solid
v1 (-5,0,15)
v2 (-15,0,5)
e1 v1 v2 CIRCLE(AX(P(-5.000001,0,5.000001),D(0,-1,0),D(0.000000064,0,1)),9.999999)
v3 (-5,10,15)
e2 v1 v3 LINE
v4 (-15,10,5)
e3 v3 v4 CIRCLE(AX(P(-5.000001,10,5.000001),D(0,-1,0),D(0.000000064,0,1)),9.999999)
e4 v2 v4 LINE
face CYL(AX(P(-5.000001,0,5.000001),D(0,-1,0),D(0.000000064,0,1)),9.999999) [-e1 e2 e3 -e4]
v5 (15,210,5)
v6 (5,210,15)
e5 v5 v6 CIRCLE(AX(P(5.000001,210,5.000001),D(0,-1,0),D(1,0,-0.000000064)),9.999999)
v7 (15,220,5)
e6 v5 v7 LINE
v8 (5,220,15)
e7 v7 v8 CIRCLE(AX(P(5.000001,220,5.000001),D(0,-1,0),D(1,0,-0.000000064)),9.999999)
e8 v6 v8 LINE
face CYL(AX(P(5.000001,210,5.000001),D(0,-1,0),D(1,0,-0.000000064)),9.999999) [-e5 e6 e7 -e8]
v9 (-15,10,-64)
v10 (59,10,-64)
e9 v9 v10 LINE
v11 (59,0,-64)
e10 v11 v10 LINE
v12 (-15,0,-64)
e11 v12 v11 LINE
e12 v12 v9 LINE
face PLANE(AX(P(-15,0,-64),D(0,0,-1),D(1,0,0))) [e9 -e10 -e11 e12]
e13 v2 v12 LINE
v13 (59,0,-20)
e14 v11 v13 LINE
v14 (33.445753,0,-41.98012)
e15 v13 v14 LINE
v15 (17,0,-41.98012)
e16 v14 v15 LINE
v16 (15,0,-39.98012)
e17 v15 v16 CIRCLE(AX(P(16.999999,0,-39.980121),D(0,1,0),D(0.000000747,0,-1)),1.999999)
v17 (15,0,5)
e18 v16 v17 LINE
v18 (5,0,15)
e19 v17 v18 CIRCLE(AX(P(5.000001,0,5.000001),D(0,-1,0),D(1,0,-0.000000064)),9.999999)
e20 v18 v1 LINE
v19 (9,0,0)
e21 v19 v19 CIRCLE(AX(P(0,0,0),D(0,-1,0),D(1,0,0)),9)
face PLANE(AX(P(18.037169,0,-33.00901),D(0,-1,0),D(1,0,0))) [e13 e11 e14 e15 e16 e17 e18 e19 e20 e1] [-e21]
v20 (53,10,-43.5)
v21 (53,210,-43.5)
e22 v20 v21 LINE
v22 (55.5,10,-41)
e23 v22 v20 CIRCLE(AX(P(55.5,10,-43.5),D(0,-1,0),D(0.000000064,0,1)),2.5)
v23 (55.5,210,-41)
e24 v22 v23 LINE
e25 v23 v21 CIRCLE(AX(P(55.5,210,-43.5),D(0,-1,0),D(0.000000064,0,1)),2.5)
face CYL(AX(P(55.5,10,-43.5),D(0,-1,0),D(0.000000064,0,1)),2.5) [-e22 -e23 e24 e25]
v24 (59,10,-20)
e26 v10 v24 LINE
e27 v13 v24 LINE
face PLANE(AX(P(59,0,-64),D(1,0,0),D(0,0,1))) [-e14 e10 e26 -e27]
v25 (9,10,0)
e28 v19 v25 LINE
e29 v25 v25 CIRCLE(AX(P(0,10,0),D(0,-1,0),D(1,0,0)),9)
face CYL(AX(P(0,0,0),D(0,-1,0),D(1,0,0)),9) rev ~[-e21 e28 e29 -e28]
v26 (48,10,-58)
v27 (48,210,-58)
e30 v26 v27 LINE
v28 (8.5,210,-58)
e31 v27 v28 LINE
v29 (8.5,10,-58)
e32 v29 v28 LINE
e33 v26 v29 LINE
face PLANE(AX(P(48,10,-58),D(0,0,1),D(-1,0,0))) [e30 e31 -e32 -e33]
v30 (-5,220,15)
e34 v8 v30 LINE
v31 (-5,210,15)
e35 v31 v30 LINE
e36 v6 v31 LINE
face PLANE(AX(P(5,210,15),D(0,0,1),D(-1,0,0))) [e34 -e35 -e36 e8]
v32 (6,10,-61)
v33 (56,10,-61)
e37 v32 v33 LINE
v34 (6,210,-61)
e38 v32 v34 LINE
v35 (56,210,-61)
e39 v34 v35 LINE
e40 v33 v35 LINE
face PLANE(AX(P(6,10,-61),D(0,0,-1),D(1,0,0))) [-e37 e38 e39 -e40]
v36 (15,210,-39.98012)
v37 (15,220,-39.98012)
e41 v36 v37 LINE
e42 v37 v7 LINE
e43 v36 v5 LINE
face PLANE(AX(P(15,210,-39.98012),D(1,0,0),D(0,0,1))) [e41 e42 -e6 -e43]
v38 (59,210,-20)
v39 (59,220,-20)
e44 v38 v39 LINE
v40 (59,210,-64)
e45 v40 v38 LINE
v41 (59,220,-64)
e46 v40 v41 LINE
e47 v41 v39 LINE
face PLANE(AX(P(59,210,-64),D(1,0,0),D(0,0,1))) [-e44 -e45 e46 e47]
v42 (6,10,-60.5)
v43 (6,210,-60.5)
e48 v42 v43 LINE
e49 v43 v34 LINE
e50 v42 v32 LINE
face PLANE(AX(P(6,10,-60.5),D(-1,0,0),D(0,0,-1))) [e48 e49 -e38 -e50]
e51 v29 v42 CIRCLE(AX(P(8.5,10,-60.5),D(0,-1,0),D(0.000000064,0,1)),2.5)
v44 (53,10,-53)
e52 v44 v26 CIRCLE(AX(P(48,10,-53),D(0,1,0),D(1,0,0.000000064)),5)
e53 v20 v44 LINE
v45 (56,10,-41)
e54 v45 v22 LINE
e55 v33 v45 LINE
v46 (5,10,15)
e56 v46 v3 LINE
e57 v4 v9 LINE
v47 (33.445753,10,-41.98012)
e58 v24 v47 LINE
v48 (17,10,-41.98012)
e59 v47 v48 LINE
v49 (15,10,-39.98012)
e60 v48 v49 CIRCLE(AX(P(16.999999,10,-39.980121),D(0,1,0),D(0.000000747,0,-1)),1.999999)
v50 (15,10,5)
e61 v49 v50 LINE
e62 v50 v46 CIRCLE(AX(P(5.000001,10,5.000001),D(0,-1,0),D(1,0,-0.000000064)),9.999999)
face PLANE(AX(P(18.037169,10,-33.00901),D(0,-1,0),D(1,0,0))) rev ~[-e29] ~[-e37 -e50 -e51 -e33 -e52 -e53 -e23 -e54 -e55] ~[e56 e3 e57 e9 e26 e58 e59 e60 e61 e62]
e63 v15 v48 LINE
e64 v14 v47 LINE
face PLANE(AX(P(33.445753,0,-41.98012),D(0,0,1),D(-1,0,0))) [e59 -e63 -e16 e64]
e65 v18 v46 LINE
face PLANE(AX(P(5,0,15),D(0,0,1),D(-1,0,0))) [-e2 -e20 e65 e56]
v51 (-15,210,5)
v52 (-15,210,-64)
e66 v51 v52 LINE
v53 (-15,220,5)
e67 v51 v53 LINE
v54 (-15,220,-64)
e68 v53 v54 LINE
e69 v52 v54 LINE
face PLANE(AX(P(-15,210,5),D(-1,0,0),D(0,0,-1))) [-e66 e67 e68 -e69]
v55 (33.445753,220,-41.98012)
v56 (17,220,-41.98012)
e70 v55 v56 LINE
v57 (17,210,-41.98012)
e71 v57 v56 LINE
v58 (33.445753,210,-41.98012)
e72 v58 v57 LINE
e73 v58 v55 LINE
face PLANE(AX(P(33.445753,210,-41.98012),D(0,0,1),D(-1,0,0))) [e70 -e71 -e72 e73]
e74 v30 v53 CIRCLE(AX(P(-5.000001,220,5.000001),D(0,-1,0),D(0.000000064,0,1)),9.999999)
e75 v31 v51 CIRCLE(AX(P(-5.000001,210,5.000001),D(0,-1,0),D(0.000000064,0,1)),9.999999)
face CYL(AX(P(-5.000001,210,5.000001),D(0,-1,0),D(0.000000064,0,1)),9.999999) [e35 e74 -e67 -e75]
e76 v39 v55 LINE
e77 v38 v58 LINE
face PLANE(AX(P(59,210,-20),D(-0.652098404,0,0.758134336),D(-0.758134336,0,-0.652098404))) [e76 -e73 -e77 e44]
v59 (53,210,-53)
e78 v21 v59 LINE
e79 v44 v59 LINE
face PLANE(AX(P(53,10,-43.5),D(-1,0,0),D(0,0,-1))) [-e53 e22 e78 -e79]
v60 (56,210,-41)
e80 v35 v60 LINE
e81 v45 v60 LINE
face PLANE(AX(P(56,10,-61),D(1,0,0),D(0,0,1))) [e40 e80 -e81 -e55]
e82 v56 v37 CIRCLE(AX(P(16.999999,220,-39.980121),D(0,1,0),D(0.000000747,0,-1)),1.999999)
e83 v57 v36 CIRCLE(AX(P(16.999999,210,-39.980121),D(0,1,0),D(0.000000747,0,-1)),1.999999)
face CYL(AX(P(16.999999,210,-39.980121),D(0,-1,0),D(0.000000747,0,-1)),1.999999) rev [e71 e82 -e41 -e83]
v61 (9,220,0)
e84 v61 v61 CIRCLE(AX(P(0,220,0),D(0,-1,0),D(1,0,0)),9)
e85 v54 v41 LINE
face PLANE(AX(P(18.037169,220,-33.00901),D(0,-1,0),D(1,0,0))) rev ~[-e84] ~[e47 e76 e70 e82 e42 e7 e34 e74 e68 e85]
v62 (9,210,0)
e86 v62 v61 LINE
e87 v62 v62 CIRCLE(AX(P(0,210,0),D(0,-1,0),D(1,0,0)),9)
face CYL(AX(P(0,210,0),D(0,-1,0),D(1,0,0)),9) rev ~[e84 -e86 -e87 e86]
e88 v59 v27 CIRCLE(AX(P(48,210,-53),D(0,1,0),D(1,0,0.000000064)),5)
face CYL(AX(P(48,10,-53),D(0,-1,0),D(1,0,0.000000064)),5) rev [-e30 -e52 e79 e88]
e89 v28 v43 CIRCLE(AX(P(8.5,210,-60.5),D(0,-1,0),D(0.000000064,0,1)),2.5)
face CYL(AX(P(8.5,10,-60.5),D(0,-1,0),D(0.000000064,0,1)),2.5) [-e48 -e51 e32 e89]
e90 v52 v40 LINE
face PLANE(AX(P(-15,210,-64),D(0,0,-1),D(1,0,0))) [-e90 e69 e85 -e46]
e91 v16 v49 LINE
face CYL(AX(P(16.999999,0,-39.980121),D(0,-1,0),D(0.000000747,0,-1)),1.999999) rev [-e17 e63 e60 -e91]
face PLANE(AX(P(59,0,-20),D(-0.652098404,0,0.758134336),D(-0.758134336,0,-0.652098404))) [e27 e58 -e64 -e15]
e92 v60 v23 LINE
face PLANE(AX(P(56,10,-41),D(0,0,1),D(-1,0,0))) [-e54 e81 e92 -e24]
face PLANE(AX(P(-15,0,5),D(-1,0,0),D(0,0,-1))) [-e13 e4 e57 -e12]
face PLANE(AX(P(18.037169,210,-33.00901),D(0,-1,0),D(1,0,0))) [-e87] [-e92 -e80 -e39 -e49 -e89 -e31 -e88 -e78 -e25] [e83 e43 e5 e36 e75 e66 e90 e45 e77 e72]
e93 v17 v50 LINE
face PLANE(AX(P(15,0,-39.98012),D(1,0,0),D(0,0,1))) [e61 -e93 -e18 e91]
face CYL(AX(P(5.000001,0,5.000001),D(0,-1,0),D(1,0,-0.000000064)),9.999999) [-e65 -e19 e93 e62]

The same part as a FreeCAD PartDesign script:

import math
import FreeCAD as App
import Part
import Sketcher
from FreeCAD import Vector
Q = App.Units.Quantity

doc = App.newDocument("Part")
body = doc.addObject("PartDesign::Body", "Body")

# Sketch on XZ plane
sketch1 = body.newObject("Sketcher::SketchObject", "Sketch")
sketch1.AttachmentSupport = (doc.getObject("XZ_Plane"), [""])
sketch1.MapMode = "FlatFace"
sketch1.addGeometry(Part.ArcOfCircle(Part.Circle(Vector(-5, 5, 0), Vector(0, 0, 1), 10), math.radians(90), math.radians(180)), False)
sketch1.addGeometry(Part.LineSegment(Vector(-15, 5, 0), Vector(-15, -64, 0)), False)
sketch1.addGeometry(Part.LineSegment(Vector(-15, -64, 0), Vector(59, -64, 0)), False)
sketch1.addGeometry(Part.LineSegment(Vector(59, -64, 0), Vector(59, -20, 0)), False)
sketch1.addGeometry(Part.LineSegment(Vector(59, -20, 0), Vector(33.4, -42, 0)), False)
sketch1.addGeometry(Part.LineSegment(Vector(33.4, -42, 0), Vector(17, -42, 0)), False)
sketch1.addGeometry(Part.ArcOfCircle(Part.Circle(Vector(17, -40, 0), Vector(0, 0, 1), 2), math.radians(180), math.radians(270)), False)
sketch1.addGeometry(Part.LineSegment(Vector(15, -40, 0), Vector(15, 5, 0)), False)
sketch1.addGeometry(Part.ArcOfCircle(Part.Circle(Vector(5, 5, 0), Vector(0, 0, 1), 10), math.radians(0), math.radians(90)), False)
sketch1.addGeometry(Part.LineSegment(Vector(5, 15, 0), Vector(-5, 15, 0)), False)
sketch1.addGeometry(Part.Circle(Vector(0, 0, 0), Vector(0, 0, 1), 9), False)
sketch1.addConstraint(Sketcher.Constraint("Tangent", 0, 2, 1, 1))
sketch1.addConstraint(Sketcher.Constraint("Coincident", 1, 2, 2, 1))
sketch1.addConstraint(Sketcher.Constraint("Coincident", 2, 2, 3, 1))
sketch1.addConstraint(Sketcher.Constraint("Coincident", 3, 2, 4, 1))
sketch1.addConstraint(Sketcher.Constraint("Coincident", 4, 2, 5, 1))
sketch1.addConstraint(Sketcher.Constraint("Tangent", 5, 2, 6, 2))
sketch1.addConstraint(Sketcher.Constraint("Tangent", 6, 1, 7, 1))
sketch1.addConstraint(Sketcher.Constraint("Tangent", 7, 2, 8, 1))
sketch1.addConstraint(Sketcher.Constraint("Tangent", 8, 2, 9, 1))
sketch1.addConstraint(Sketcher.Constraint("Tangent", 9, 2, 0, 1))
sketch1.addConstraint(Sketcher.Constraint("Vertical", 1))
sketch1.addConstraint(Sketcher.Constraint("Horizontal", 2))
sketch1.addConstraint(Sketcher.Constraint("Vertical", 3))
sketch1.addConstraint(Sketcher.Constraint("Horizontal", 5))
sketch1.addConstraint(Sketcher.Constraint("Vertical", 7))
sketch1.addConstraint(Sketcher.Constraint("Horizontal", 9))
sketch1.addConstraint(Sketcher.Constraint("Coincident", 10, 3, -1, 1))
sketch1.addConstraint(Sketcher.Constraint("Equal", 0, 8))
sketch1.addConstraint(Sketcher.Constraint("Diameter", 10, Q("18 mm")))
sketch1.addConstraint(Sketcher.Constraint("Radius", 0, Q("9.999999 mm")))
sketch1.addConstraint(Sketcher.Constraint("Radius", 6, Q("1.999999 mm")))
sketch1.addConstraint(Sketcher.Constraint("DistanceX", 2, 1, 2, 2, Q("74 mm")))
sketch1.addConstraint(Sketcher.Constraint("DistanceX", 9, 2, 9, 1, Q("10 mm")))
sketch1.addConstraint(Sketcher.Constraint("DistanceY", 1, 2, 1, 1, Q("69 mm")))
sketch1.addConstraint(Sketcher.Constraint("DistanceY", 3, 1, 3, 2, Q("44 mm")))
sketch1.addConstraint(Sketcher.Constraint("DistanceX", 0, 3, -1, 1, Q("5.000001 mm")))
sketch1.addConstraint(Sketcher.Constraint("DistanceY", -1, 1, 0, 3, Q("5.000001 mm")))
sketch1.addConstraint(Sketcher.Constraint("Angle", 4, Q("-139.3 deg")))
sketch1.addConstraint(Sketcher.Constraint("DistanceY", 7, 1, 7, 2, Q("44.98012 mm")))
pad1 = body.newObject("PartDesign::Pad", "Pad")
pad1.Profile = sketch1
pad1.Length = 10
pad1.Reversed = True

# Sketch on XZ plane
sketch2 = body.newObject("Sketcher::SketchObject", "Sketch001")
sketch2.AttachmentSupport = (doc.getObject("XZ_Plane"), [""])
sketch2.MapMode = "FlatFace"
sketch2.AttachmentOffset = App.Placement(Vector(0, 0, -10), App.Rotation())
sketch2.addGeometry(Part.LineSegment(Vector(6, -60.5, 0), Vector(6, -61, 0)), False)
sketch2.addGeometry(Part.LineSegment(Vector(6, -61, 0), Vector(56, -61, 0)), False)
sketch2.addGeometry(Part.LineSegment(Vector(56, -61, 0), Vector(56, -41, 0)), False)
sketch2.addGeometry(Part.LineSegment(Vector(56, -41, 0), Vector(55.5, -41, 0)), False)
sketch2.addGeometry(Part.ArcOfCircle(Part.Circle(Vector(55.5, -43.5, 0), Vector(0, 0, 1), 2.5), math.radians(90), math.radians(180)), False)
sketch2.addGeometry(Part.LineSegment(Vector(53, -43.5, 0), Vector(53, -53, 0)), False)
sketch2.addGeometry(Part.ArcOfCircle(Part.Circle(Vector(48, -53, 0), Vector(0, 0, 1), 5), math.radians(-90), math.radians(0)), False)
sketch2.addGeometry(Part.LineSegment(Vector(48, -58, 0), Vector(8.5, -58, 0)), False)
sketch2.addGeometry(Part.ArcOfCircle(Part.Circle(Vector(8.5, -60.5, 0), Vector(0, 0, 1), 2.5), math.radians(90), math.radians(180)), False)
sketch2.addConstraint(Sketcher.Constraint("Coincident", 0, 2, 1, 1))
sketch2.addConstraint(Sketcher.Constraint("Coincident", 1, 2, 2, 1))
sketch2.addConstraint(Sketcher.Constraint("Coincident", 2, 2, 3, 1))
sketch2.addConstraint(Sketcher.Constraint("Tangent", 3, 2, 4, 1))
sketch2.addConstraint(Sketcher.Constraint("Tangent", 4, 2, 5, 1))
sketch2.addConstraint(Sketcher.Constraint("Tangent", 5, 2, 6, 2))
sketch2.addConstraint(Sketcher.Constraint("Tangent", 6, 1, 7, 1))
sketch2.addConstraint(Sketcher.Constraint("Tangent", 7, 2, 8, 1))
sketch2.addConstraint(Sketcher.Constraint("Tangent", 8, 2, 0, 1))
sketch2.addConstraint(Sketcher.Constraint("Vertical", 0))
sketch2.addConstraint(Sketcher.Constraint("Horizontal", 1))
sketch2.addConstraint(Sketcher.Constraint("Vertical", 2))
sketch2.addConstraint(Sketcher.Constraint("Horizontal", 3))
sketch2.addConstraint(Sketcher.Constraint("Vertical", 5))
sketch2.addConstraint(Sketcher.Constraint("Horizontal", 7))
sketch2.addConstraint(Sketcher.Constraint("Equal", 4, 8))
sketch2.addConstraint(Sketcher.Constraint("Equal", 3, 0))
sketch2.addConstraint(Sketcher.Constraint("Radius", 6, Q("5 mm")))
sketch2.addConstraint(Sketcher.Constraint("Radius", 4, Q("2.5 mm")))
sketch2.addConstraint(Sketcher.Constraint("DistanceX", 1, 1, 1, 2, Q("50 mm")))
sketch2.addConstraint(Sketcher.Constraint("DistanceY", 2, 1, 2, 2, Q("20 mm")))
sketch2.addConstraint(Sketcher.Constraint("DistanceX", 3, 2, 3, 1, Q("0.5 mm")))
sketch2.addConstraint(Sketcher.Constraint("DistanceX", -1, 1, 6, 3, Q("48 mm")))
sketch2.addConstraint(Sketcher.Constraint("DistanceY", 6, 3, -1, 1, Q("53 mm")))
pad2 = body.newObject("PartDesign::Pad", "Pad001")
pad2.Profile = sketch2
pad2.Length = 200
pad2.Reversed = True

# Sketch on XZ plane
sketch3 = body.newObject("Sketcher::SketchObject", "Sketch002")
sketch3.AttachmentSupport = (doc.getObject("XZ_Plane"), [""])
sketch3.MapMode = "FlatFace"
sketch3.AttachmentOffset = App.Placement(Vector(0, 0, -210), App.Rotation())
sketch3.addGeometry(Part.ArcOfCircle(Part.Circle(Vector(-5, 5, 0), Vector(0, 0, 1), 10), math.radians(90), math.radians(180)), False)
sketch3.addGeometry(Part.LineSegment(Vector(-15, 5, 0), Vector(-15, -64, 0)), False)
sketch3.addGeometry(Part.LineSegment(Vector(-15, -64, 0), Vector(59, -64, 0)), False)
sketch3.addGeometry(Part.LineSegment(Vector(59, -64, 0), Vector(59, -20, 0)), False)
sketch3.addGeometry(Part.LineSegment(Vector(59, -20, 0), Vector(33.4, -42, 0)), False)
sketch3.addGeometry(Part.LineSegment(Vector(33.4, -42, 0), Vector(17, -42, 0)), False)
sketch3.addGeometry(Part.ArcOfCircle(Part.Circle(Vector(17, -40, 0), Vector(0, 0, 1), 2), math.radians(180), math.radians(270)), False)
sketch3.addGeometry(Part.LineSegment(Vector(15, -40, 0), Vector(15, 5, 0)), False)
sketch3.addGeometry(Part.ArcOfCircle(Part.Circle(Vector(5, 5, 0), Vector(0, 0, 1), 10), math.radians(0), math.radians(90)), False)
sketch3.addGeometry(Part.LineSegment(Vector(5, 15, 0), Vector(-5, 15, 0)), False)
sketch3.addGeometry(Part.Circle(Vector(0, 0, 0), Vector(0, 0, 1), 9), False)
sketch3.addConstraint(Sketcher.Constraint("Tangent", 0, 2, 1, 1))
sketch3.addConstraint(Sketcher.Constraint("Coincident", 1, 2, 2, 1))
sketch3.addConstraint(Sketcher.Constraint("Coincident", 2, 2, 3, 1))
sketch3.addConstraint(Sketcher.Constraint("Coincident", 3, 2, 4, 1))
sketch3.addConstraint(Sketcher.Constraint("Coincident", 4, 2, 5, 1))
sketch3.addConstraint(Sketcher.Constraint("Tangent", 5, 2, 6, 2))
sketch3.addConstraint(Sketcher.Constraint("Tangent", 6, 1, 7, 1))
sketch3.addConstraint(Sketcher.Constraint("Tangent", 7, 2, 8, 1))
sketch3.addConstraint(Sketcher.Constraint("Tangent", 8, 2, 9, 1))
sketch3.addConstraint(Sketcher.Constraint("Tangent", 9, 2, 0, 1))
sketch3.addConstraint(Sketcher.Constraint("Vertical", 1))
sketch3.addConstraint(Sketcher.Constraint("Horizontal", 2))
sketch3.addConstraint(Sketcher.Constraint("Vertical", 3))
sketch3.addConstraint(Sketcher.Constraint("Horizontal", 5))
sketch3.addConstraint(Sketcher.Constraint("Vertical", 7))
sketch3.addConstraint(Sketcher.Constraint("Horizontal", 9))
sketch3.addConstraint(Sketcher.Constraint("Coincident", 10, 3, -1, 1))
sketch3.addConstraint(Sketcher.Constraint("Equal", 0, 8))
sketch3.addConstraint(Sketcher.Constraint("Diameter", 10, Q("18 mm")))
sketch3.addConstraint(Sketcher.Constraint("Radius", 0, Q("9.999999 mm")))
sketch3.addConstraint(Sketcher.Constraint("Radius", 6, Q("1.999999 mm")))
sketch3.addConstraint(Sketcher.Constraint("DistanceX", 2, 1, 2, 2, Q("74 mm")))
sketch3.addConstraint(Sketcher.Constraint("DistanceX", 9, 2, 9, 1, Q("10 mm")))
sketch3.addConstraint(Sketcher.Constraint("DistanceY", 1, 2, 1, 1, Q("69 mm")))
sketch3.addConstraint(Sketcher.Constraint("DistanceY", 3, 1, 3, 2, Q("44 mm")))
sketch3.addConstraint(Sketcher.Constraint("DistanceX", 0, 3, -1, 1, Q("5.000001 mm")))
sketch3.addConstraint(Sketcher.Constraint("DistanceY", -1, 1, 0, 3, Q("5.000001 mm")))
sketch3.addConstraint(Sketcher.Constraint("Angle", 4, Q("-139.3 deg")))
sketch3.addConstraint(Sketcher.Constraint("DistanceY", 7, 1, 7, 2, Q("44.98012 mm")))
pad3 = body.newObject("PartDesign::Pad", "Pad002")
pad3.Profile = sketch3
pad3.Length = 10
pad3.Reversed = True

doc.recompute()
